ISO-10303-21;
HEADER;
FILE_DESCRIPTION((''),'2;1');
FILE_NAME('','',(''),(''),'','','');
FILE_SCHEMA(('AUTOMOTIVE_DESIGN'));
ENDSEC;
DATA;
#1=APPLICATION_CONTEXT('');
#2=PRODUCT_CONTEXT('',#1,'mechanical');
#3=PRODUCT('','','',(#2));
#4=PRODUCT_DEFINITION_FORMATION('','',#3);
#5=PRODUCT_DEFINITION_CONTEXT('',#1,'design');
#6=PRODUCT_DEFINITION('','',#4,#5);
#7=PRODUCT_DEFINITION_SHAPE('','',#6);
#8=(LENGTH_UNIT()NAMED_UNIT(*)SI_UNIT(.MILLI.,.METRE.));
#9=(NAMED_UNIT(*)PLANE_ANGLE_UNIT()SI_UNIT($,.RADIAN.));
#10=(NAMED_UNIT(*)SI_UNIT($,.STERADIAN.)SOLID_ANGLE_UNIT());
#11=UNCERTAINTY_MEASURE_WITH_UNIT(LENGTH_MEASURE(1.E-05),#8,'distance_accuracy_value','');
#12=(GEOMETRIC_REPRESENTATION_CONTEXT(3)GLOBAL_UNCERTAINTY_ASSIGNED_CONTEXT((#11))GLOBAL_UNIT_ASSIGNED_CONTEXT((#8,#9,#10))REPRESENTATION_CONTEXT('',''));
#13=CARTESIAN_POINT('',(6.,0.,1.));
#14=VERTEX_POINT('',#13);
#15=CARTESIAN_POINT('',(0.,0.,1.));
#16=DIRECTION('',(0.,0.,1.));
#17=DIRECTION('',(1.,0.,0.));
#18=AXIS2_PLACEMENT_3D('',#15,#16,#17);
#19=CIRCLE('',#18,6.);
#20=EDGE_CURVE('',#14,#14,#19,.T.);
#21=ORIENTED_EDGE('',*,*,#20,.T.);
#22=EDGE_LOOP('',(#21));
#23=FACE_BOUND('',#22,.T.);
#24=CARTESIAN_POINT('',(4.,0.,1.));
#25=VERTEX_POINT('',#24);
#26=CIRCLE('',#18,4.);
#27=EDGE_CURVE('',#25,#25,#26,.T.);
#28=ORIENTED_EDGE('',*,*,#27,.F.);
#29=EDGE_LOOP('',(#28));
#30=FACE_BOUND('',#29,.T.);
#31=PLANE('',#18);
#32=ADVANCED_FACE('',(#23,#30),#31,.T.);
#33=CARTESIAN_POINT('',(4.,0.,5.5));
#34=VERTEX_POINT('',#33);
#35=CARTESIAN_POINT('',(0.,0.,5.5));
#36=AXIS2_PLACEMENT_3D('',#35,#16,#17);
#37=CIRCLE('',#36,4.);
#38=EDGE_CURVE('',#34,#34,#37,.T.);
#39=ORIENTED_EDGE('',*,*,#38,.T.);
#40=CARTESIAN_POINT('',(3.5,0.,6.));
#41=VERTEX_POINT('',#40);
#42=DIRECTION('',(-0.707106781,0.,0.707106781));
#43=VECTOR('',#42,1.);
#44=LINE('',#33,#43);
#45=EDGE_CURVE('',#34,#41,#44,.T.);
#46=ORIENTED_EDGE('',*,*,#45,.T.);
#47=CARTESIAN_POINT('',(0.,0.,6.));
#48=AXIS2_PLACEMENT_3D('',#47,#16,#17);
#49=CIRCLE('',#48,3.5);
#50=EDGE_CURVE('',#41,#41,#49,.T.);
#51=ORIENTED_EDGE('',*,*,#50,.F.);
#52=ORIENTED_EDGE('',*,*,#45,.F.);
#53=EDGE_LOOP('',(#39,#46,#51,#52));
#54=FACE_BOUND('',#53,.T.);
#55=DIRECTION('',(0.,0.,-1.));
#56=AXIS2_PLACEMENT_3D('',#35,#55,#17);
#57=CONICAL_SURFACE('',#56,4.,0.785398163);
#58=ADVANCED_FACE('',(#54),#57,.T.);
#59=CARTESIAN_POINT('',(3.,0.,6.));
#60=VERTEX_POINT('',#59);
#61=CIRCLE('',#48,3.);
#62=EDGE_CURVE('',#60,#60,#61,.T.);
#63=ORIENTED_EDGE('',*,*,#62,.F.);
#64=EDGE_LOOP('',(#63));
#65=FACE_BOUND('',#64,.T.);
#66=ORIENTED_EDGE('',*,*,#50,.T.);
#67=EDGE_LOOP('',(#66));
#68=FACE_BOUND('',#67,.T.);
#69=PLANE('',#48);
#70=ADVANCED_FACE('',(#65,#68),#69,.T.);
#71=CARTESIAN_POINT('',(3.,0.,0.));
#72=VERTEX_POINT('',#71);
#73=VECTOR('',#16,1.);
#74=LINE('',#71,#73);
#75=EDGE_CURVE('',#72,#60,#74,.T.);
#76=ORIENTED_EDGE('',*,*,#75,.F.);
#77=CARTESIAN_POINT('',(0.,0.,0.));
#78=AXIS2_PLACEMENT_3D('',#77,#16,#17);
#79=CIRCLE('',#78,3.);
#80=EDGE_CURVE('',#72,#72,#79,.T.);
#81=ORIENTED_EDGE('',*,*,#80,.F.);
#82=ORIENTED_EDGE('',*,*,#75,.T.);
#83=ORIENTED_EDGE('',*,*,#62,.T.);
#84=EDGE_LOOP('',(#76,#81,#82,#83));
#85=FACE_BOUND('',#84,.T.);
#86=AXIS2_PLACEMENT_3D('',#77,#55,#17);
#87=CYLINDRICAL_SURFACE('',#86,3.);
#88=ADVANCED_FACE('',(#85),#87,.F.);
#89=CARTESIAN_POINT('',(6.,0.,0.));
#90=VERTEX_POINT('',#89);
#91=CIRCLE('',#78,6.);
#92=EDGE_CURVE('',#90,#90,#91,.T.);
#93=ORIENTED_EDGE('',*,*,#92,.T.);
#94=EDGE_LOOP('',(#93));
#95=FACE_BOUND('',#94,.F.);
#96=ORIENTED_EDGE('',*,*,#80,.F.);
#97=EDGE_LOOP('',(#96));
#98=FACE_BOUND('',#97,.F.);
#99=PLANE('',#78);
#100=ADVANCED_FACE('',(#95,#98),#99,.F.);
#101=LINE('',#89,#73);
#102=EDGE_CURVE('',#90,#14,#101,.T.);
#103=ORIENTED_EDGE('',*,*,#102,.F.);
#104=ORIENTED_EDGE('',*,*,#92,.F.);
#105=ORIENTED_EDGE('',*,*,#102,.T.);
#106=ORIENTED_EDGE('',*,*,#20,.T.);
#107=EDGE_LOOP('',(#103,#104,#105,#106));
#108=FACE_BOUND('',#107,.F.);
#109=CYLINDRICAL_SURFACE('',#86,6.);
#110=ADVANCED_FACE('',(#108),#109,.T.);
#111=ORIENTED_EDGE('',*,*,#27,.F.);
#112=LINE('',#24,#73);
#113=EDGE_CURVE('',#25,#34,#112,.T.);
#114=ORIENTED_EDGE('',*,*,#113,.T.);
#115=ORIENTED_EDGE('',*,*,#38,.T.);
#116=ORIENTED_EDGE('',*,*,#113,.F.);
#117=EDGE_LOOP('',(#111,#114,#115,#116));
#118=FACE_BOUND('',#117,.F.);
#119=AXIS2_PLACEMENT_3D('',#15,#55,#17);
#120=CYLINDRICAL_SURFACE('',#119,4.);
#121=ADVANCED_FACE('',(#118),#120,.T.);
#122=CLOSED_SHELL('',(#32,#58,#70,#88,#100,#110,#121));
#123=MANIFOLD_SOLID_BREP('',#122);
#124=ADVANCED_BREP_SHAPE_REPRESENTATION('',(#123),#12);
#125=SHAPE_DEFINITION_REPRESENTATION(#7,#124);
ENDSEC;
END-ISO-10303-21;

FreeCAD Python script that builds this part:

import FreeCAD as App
import Part
import Sketcher
from FreeCAD import Vector
Q = App.Units.Quantity


def edges_at(feature, points):
    """Names of the edges that pass closest to the given points."""
    edges = feature.Shape.Edges
    near = lambda p: min(range(len(edges)), key=lambda i: edges[i].distToShape(Part.Vertex(*p))[0])
    return sorted({f"Edge{near(p) + 1}" for p in points})

doc = App.newDocument("Part")
params = doc.addObject("Spreadsheet::Sheet", "Params")
for row, (alias, value) in enumerate([
    ("sketch1_diameter", "12 mm"),
    ("sketch1_diameter2", "6 mm"),
    ("pad1_length", "1 mm"),
    ("sketch2_diameter", "8 mm"),
    ("sketch2_diameter2", "6 mm"),
    ("pad2_length", "5 mm"),
    ("chamfer_size", "0.5 mm"),
], start=1):
    params.set(f"A{row}", alias)
    params.set(f"B{row}", "=" + value)
    params.setAlias(f"B{row}", alias)

body = doc.addObject("PartDesign::Body", "Body")

# Sketch on XY plane
sketch1 = body.newObject("Sketcher::SketchObject", "Sketch")
sketch1.AttachmentSupport = (doc.getObject("XY_Plane"), [""])
sketch1.MapMode = "FlatFace"
sketch1.addGeometry(Part.Circle(Vector(0, 0, 0), Vector(0, 0, 1), 6), False)
sketch1.addGeometry(Part.Circle(Vector(0, 0, 0), Vector(0, 0, 1), 3), False)
sketch1.addConstraint(Sketcher.Constraint("Coincident", 0, 3, -1, 1))
sketch1.addConstraint(Sketcher.Constraint("Coincident", 1, 3, -1, 1))
sketch1.addConstraint(Sketcher.Constraint("Diameter", 0, Q("12 mm")))
sketch1.addConstraint(Sketcher.Constraint("Diameter", 1, Q("6 mm")))
sketch1.setExpression("Constraints[2]", "Params.sketch1_diameter")
sketch1.setExpression("Constraints[3]", "Params.sketch1_diameter2")
pad1 = body.newObject("PartDesign::Pad", "Pad")
pad1.Profile = sketch1
pad1.setExpression("Length", "Params.pad1_length")

# Sketch on XY plane
sketch2 = body.newObject("Sketcher::SketchObject", "Sketch001")
sketch2.AttachmentSupport = (doc.getObject("XY_Plane"), [""])
sketch2.MapMode = "FlatFace"
sketch2.AttachmentOffset = App.Placement(Vector(0, 0, 1), App.Rotation())
sketch2.addGeometry(Part.Circle(Vector(0, 0, 0), Vector(0, 0, 1), 4), False)
sketch2.addGeometry(Part.Circle(Vector(0, 0, 0), Vector(0, 0, 1), 3), False)
sketch2.addConstraint(Sketcher.Constraint("Coincident", 0, 3, -1, 1))
sketch2.addConstraint(Sketcher.Constraint("Coincident", 1, 3, -1, 1))
sketch2.addConstraint(Sketcher.Constraint("Diameter", 0, Q("8 mm")))
sketch2.addConstraint(Sketcher.Constraint("Diameter", 1, Q("6 mm")))
sketch2.setExpression("Constraints[2]", "Params.sketch2_diameter")
sketch2.setExpression("Constraints[3]", "Params.sketch2_diameter2")
pad2 = body.newObject("PartDesign::Pad", "Pad001")
pad2.Profile = sketch2
pad2.setExpression("Length", "Params.pad2_length")
doc.recompute()

chamfer = body.newObject("PartDesign::Chamfer", "Chamfer")
chamfer.Base = (pad2, edges_at(pad2, [(-4, 0, 6)]))
chamfer.setExpression("Size", "Params.chamfer_size")

doc.recompute()
